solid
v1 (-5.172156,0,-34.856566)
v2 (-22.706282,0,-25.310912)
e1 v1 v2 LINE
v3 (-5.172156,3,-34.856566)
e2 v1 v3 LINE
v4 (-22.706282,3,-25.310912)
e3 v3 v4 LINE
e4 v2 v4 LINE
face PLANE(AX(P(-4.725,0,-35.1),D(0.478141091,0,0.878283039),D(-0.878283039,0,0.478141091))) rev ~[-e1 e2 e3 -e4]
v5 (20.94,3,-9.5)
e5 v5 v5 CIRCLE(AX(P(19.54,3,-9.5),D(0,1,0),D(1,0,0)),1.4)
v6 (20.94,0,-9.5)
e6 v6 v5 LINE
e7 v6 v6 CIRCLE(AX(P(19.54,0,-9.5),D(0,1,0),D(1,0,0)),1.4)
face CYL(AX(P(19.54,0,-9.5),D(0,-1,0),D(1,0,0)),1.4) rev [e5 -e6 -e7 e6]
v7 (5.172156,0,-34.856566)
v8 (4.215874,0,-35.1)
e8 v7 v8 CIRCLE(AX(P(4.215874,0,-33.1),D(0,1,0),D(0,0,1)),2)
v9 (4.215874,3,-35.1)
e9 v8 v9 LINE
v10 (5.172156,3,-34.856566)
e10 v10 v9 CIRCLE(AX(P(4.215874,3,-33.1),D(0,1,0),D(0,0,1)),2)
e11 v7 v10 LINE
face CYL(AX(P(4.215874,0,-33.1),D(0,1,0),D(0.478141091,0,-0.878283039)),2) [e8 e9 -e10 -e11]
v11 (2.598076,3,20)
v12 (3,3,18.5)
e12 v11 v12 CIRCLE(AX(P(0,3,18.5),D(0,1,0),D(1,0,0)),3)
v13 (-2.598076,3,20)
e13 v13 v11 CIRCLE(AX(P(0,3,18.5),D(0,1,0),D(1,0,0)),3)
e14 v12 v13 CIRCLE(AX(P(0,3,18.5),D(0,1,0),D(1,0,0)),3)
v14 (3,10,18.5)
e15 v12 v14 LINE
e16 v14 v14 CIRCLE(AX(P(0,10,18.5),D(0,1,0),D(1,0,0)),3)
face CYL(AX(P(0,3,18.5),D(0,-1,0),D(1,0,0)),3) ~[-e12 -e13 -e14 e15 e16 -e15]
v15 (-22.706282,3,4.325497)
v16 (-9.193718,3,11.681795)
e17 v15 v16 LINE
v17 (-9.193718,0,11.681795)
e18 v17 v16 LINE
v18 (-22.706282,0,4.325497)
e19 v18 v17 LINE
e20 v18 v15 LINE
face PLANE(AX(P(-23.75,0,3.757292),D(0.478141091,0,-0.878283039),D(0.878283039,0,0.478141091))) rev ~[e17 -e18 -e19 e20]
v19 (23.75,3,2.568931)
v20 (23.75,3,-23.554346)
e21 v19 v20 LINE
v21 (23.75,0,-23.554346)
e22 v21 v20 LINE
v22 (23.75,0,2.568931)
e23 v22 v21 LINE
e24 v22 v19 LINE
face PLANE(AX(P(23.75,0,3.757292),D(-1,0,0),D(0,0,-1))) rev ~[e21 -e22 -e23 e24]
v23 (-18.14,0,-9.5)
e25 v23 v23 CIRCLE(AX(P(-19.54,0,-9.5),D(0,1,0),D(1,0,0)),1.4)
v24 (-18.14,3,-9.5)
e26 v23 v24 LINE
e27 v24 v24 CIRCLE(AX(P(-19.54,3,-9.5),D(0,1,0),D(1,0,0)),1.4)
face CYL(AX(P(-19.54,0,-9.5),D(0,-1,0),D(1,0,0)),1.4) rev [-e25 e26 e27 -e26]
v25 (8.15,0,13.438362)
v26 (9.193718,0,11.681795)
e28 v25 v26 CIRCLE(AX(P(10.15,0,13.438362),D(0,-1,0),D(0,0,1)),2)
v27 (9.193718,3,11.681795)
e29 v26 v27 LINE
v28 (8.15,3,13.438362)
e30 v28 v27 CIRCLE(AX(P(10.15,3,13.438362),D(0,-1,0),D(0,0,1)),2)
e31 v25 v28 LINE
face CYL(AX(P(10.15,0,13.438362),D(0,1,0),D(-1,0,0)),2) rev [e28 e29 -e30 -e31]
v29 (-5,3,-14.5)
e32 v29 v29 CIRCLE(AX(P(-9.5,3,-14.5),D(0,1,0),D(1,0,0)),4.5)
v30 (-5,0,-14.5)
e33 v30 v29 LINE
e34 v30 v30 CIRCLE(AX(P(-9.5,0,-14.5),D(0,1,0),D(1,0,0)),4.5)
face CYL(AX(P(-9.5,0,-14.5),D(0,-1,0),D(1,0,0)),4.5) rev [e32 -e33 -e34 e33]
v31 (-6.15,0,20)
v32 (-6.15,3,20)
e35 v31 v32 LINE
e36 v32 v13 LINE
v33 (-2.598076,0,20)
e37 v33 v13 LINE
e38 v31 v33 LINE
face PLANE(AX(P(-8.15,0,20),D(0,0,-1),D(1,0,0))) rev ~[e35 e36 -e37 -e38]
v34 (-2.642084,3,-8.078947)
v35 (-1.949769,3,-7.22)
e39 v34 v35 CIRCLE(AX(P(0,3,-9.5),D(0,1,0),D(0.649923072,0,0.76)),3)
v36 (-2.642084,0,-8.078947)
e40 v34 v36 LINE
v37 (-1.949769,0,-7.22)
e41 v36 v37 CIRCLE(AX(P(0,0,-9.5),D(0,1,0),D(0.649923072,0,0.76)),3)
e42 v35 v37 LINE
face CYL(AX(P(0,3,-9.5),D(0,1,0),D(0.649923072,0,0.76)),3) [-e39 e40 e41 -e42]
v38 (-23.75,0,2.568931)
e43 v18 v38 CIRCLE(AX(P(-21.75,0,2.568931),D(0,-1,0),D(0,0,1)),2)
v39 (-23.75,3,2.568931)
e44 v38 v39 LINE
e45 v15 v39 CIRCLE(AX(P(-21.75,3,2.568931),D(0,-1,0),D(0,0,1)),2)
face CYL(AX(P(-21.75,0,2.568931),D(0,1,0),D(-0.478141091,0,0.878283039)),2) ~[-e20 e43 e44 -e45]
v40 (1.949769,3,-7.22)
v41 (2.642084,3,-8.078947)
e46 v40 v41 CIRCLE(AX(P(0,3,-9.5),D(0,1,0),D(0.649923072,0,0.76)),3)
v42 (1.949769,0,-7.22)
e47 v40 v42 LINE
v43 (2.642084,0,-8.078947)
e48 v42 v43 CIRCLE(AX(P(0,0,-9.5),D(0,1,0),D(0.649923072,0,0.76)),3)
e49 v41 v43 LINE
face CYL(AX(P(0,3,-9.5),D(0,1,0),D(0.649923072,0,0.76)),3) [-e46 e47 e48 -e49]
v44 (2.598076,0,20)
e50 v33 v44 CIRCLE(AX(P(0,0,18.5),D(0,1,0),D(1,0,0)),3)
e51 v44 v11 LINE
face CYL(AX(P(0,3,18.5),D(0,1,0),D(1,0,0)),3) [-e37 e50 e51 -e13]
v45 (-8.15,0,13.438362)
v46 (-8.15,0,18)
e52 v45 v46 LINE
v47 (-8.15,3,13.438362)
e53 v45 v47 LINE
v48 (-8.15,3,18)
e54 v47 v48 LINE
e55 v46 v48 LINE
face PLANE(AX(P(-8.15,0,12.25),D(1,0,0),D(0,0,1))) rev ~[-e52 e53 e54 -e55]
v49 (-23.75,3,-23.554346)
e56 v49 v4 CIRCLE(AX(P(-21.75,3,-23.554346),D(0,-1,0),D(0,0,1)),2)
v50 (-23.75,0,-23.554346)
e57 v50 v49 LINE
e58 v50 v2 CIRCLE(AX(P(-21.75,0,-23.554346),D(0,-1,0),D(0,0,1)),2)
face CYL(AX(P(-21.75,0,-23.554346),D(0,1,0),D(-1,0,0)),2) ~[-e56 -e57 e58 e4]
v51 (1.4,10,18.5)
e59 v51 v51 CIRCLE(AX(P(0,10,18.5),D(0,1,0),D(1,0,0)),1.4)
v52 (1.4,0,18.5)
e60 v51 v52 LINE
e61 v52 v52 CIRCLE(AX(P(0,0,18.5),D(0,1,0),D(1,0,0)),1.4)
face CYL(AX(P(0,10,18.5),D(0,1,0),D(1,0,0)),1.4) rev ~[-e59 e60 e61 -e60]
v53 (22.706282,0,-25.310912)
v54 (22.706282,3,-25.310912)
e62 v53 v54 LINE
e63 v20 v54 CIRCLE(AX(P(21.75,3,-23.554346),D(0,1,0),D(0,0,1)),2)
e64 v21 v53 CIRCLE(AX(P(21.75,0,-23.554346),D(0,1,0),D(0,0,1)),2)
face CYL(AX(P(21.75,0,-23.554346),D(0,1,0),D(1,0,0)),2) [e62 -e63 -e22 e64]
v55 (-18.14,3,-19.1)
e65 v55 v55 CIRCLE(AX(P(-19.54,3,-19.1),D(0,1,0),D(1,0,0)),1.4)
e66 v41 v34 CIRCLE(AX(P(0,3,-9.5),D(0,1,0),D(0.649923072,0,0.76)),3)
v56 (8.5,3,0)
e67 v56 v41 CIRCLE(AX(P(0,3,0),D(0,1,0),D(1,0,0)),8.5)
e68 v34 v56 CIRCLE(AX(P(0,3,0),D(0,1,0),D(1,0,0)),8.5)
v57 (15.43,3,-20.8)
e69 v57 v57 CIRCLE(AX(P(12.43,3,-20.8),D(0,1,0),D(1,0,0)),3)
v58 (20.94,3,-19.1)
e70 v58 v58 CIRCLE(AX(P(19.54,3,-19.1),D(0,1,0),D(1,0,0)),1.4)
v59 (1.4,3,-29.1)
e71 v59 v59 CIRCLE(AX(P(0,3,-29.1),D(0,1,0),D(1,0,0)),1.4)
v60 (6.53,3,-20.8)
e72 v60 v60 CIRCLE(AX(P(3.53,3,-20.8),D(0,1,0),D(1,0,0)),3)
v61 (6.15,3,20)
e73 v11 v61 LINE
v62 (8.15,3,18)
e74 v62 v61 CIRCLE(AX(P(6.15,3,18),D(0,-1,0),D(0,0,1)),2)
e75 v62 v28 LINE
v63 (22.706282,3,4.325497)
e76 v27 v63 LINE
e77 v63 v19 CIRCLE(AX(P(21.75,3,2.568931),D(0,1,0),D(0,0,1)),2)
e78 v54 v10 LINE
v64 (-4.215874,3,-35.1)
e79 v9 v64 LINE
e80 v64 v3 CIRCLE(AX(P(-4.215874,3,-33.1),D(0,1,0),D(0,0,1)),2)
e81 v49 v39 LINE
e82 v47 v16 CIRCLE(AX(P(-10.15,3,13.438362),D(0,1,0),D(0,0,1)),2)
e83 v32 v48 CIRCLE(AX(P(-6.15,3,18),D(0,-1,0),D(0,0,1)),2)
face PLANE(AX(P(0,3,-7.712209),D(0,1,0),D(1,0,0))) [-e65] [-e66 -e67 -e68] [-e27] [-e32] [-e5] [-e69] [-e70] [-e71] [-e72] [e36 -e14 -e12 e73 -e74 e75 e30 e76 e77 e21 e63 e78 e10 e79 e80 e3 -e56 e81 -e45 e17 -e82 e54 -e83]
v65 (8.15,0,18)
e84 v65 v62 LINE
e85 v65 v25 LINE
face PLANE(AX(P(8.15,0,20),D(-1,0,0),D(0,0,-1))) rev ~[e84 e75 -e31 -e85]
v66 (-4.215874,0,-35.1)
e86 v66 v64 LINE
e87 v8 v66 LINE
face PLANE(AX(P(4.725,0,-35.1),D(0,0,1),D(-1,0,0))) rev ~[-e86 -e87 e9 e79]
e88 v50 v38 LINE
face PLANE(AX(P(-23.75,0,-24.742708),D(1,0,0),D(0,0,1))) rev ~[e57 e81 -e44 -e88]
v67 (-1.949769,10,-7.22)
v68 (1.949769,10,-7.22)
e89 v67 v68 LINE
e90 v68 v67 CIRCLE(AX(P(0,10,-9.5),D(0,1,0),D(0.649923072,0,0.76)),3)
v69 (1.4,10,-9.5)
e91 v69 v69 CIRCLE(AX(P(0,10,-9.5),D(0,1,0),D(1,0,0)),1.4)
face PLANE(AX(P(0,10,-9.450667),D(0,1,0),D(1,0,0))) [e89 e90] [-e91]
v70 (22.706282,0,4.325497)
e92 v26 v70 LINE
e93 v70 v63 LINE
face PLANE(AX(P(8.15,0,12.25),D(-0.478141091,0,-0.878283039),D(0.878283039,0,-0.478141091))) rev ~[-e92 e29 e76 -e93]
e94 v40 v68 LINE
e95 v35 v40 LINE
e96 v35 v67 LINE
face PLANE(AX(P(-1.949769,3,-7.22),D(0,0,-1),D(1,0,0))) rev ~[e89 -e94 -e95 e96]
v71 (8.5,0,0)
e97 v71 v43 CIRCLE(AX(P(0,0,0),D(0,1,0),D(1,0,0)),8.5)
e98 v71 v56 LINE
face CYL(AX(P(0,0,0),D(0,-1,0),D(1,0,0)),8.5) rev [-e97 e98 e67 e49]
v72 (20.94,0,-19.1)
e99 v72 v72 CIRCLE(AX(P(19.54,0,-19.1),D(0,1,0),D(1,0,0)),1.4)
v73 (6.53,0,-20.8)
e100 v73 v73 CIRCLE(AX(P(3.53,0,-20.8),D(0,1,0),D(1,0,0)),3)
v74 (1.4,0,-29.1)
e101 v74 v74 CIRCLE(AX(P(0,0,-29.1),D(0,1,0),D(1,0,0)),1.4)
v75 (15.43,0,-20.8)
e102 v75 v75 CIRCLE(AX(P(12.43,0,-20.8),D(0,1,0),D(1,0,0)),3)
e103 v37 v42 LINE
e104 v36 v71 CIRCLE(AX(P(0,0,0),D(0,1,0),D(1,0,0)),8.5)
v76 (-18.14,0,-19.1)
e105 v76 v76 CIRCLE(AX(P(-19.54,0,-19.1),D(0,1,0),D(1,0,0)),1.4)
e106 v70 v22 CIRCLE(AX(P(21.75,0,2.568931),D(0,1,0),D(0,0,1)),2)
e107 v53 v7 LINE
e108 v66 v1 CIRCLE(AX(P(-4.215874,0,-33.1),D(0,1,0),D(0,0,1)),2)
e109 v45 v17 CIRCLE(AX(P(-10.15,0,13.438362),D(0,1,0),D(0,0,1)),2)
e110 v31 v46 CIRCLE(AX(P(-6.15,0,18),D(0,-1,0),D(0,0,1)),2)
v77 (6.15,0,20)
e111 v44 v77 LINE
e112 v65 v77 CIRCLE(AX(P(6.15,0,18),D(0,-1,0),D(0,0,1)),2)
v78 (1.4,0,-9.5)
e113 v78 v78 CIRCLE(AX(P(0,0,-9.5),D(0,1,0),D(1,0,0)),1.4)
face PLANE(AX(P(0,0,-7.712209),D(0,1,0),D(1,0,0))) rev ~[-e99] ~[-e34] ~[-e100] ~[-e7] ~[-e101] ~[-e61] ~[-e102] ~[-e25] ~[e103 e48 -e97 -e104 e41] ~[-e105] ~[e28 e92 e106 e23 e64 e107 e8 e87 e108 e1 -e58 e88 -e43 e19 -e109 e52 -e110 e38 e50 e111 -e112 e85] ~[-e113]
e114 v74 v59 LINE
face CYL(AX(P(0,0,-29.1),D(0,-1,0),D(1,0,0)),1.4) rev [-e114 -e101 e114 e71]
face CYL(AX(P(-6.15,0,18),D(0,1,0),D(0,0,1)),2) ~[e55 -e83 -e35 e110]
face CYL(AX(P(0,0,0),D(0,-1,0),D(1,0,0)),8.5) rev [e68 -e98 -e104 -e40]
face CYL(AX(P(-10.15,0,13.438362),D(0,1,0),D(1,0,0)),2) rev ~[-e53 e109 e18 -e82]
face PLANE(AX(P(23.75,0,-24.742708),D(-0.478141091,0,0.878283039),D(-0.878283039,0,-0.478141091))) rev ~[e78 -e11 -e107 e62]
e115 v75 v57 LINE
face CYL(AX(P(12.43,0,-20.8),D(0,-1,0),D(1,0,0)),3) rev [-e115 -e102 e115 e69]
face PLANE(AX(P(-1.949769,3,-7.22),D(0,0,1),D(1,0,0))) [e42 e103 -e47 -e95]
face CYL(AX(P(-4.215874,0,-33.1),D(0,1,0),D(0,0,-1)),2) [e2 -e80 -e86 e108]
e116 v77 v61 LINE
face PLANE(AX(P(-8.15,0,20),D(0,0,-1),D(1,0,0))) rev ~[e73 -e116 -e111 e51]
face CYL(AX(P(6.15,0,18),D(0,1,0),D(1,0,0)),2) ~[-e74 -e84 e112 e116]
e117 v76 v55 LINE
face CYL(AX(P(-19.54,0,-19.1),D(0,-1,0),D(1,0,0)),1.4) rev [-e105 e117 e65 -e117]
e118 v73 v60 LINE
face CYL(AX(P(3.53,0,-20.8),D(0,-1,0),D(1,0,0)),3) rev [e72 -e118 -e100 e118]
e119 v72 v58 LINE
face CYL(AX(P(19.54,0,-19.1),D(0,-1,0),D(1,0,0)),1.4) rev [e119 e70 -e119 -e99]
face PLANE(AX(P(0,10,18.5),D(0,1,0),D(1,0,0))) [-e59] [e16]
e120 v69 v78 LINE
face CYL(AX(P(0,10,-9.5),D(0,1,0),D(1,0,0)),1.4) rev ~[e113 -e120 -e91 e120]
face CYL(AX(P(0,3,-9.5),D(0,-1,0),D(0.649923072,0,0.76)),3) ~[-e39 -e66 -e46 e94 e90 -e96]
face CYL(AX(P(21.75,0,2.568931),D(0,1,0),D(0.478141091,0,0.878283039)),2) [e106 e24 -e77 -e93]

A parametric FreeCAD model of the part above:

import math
import FreeCAD as App
import Part
import Sketcher


def edges_at(feature, points):
    """Names of the edges that pass closest to the given points."""
    edges = feature.Shape.Edges
    near = lambda p: min(range(len(edges)), key=lambda i: edges[i].distToShape(Part.Vertex(*p))[0])
    return sorted({f"Edge{near(p) + 1}" for p in points})

doc = App.newDocument("Part")
params = doc.addObject("Spreadsheet::Sheet", "Params")
for row, (alias, value) in enumerate([
    ("sketch1_diameter", "17 mm"),
    ("sketch1_diameter2", "9 mm"),
    ("sketch1_diameter3", "6 mm"),
    ("sketch1_diameter4", "2.8 mm"),
    ("sketch1_width", "16.3 mm"),
    ("pad1_length", "3 mm"),
    ("fillet_radius", "2 mm"),
    ("sketch2_diameter", "6 mm"),
    ("pad2_length", "7 mm"),
    ("pad2_length2", "3 mm"),
    ("sketch3_diameter", "2.8 mm"),
], start=1):
    params.set(f"A{row}", alias)
    params.set(f"B{row}", "=" + value)
    params.setAlias(f"B{row}", alias)

body = doc.addObject("PartDesign::Body", "Body")

sketch1 = body.newObject("Sketcher::SketchObject", "Sketch")
sketch1.AttachmentSupport = (doc.getObject("XZ_Plane"), [""])
sketch1.MapMode = "FlatFace"
sketch1.addGeometry([
    Part.LineSegment(App.Vector(8.2, 20, 0), App.Vector(8.2, 12.2, 0)),
    Part.LineSegment(App.Vector(8.2, 12.2, 0), App.Vector(23.8, 3.8, 0)),
    Part.LineSegment(App.Vector(23.8, 3.8, 0), App.Vector(23.8, -24.7, 0)),
    Part.LineSegment(App.Vector(23.8, -24.7, 0), App.Vector(4.7, -35.1, 0)),
    Part.LineSegment(App.Vector(4.7, -35.1, 0), App.Vector(-4.7, -35.1, 0)),
    Part.LineSegment(App.Vector(-4.7, -35.1, 0), App.Vector(-23.8, -24.7, 0)),
    Part.LineSegment(App.Vector(-23.8, -24.7, 0), App.Vector(-23.8, 3.8, 0)),
    Part.LineSegment(App.Vector(-23.8, 3.8, 0), App.Vector(-8.2, 12.2, 0)),
    Part.LineSegment(App.Vector(-8.2, 12.2, 0), App.Vector(-8.2, 20, 0)),
    Part.LineSegment(App.Vector(-8.2, 20, 0), App.Vector(8.2, 20, 0)),
    Part.Circle(App.Vector(-19.5, -9.5, 0), App.Vector(0, 0, 1), 1.4),
    Part.Circle(App.Vector(0, 0, 0), App.Vector(0, 0, 1), 8.5),
    Part.Circle(App.Vector(19.5, -9.5, 0), App.Vector(0, 0, 1), 1.4),
    Part.Circle(App.Vector(-19.5, -19.1, 0), App.Vector(0, 0, 1), 1.4),
    Part.Circle(App.Vector(-9.5, -14.5, 0), App.Vector(0, 0, 1), 4.5),
    Part.Circle(App.Vector(19.5, -19.1, 0), App.Vector(0, 0, 1), 1.4),
    Part.Circle(App.Vector(3.5, -20.8, 0), App.Vector(0, 0, 1), 3),
    Part.Circle(App.Vector(0, -29.1, 0), App.Vector(0, 0, 1), 1.4),
    Part.Circle(App.Vector(12.4, -20.8, 0), App.Vector(0, 0, 1), 3),
], False)
sketch1.addConstraint([
    Sketcher.Constraint("Coincident", 0, 2, 1, 1),
    Sketcher.Constraint("Coincident", 1, 2, 2, 1),
    Sketcher.Constraint("Coincident", 2, 2, 3, 1),
    Sketcher.Constraint("Coincident", 3, 2, 4, 1),
    Sketcher.Constraint("Coincident", 4, 2, 5, 1),
    Sketcher.Constraint("Coincident", 5, 2, 6, 1),
    Sketcher.Constraint("Coincident", 6, 2, 7, 1),
    Sketcher.Constraint("Coincident", 7, 2, 8, 1),
    Sketcher.Constraint("Coincident", 8, 2, 9, 1),
    Sketcher.Constraint("Coincident", 9, 2, 0, 1),
    Sketcher.Constraint("Vertical", 0),
    Sketcher.Constraint("Vertical", 2),
    Sketcher.Constraint("Horizontal", 4),
    Sketcher.Constraint("Vertical", 6),
    Sketcher.Constraint("Vertical", 8),
    Sketcher.Constraint("Horizontal", 9),
    Sketcher.Constraint("Coincident", 11, 3, -1, 1),
    Sketcher.Constraint("Equal", 10, 12),
    Sketcher.Constraint("Equal", 12, 13),
    Sketcher.Constraint("Equal", 13, 15),
    Sketcher.Constraint("Equal", 15, 17),
    Sketcher.Constraint("Equal", 16, 18),
    Sketcher.Constraint("Symmetric", 10, 3, 12, 3, -2),
    Sketcher.Constraint("Symmetric", 13, 3, 15, 3, -2),
    Sketcher.Constraint("Symmetric", 2, 2, 5, 2, -2),
    Sketcher.Constraint("Symmetric", 0, 2, 7, 2, -2),
    Sketcher.Constraint("PointOnObject", 17, 3, -2),
    Sketcher.Constraint("Parallel", 1, 5),
    Sketcher.Constraint("Parallel", 3, 7),
    Sketcher.Constraint("Horizontal", 16, 3, 18, 3),
    Sketcher.Constraint("Horizontal", 1, 2, 6, 2),
    Sketcher.Constraint("Vertical", 10, 3, 13, 3),
    Sketcher.Constraint("Diameter", 11, 17.0),
    Sketcher.Constraint("Diameter", 14, 9.0),
    Sketcher.Constraint("Diameter", 16, 6.0),
    Sketcher.Constraint("Diameter", 10, 2.8),
    Sketcher.Constraint("DistanceX", 9, 1, 9, 2, 16.3),
    Sketcher.Constraint("DistanceY", 2, 2, 2, 1, 28.5),
    Sketcher.Constraint("DistanceY", -1, 1, 8, 2, 20.0),
    Sketcher.Constraint("DistanceY", 14, 3, 10, 3, 5.0),
    Sketcher.Constraint("DistanceY", 17, 3, 13, 3, 10.0),
    Sketcher.Constraint("DistanceY", 3, 2, 17, 3, 6.0),
    Sketcher.Constraint("DistanceX", 4, 2, 4, 1, 9.45),
    Sketcher.Constraint("DistanceY", 0, 2, 0, 1, 7.75),
    Sketcher.Constraint("DistanceY", 10, 3, -1, 1, 9.5),
    Sketcher.Constraint("DistanceY", 13, 3, -1, 1, 19.1),
    Sketcher.Constraint("DistanceX", 14, 3, -1, 1, 9.5),
    Sketcher.Constraint("DistanceY", 16, 3, -1, 1, 20.8),
    Sketcher.Constraint("DistanceX", 16, 3, 18, 3, 8.9),
    Sketcher.Constraint("DistanceX", 0, 2, 1, 2, 15.6),
    Sketcher.Constraint("DistanceX", 10, 3, -1, 1, 19.54),
    Sketcher.Constraint("DistanceX", -1, 1, 16, 3, 3.53),
])
sketch1.setExpression("Constraints[32]", "Params.sketch1_diameter")
sketch1.setExpression("Constraints[33]", "Params.sketch1_diameter2")
sketch1.setExpression("Constraints[34]", "Params.sketch1_diameter3")
sketch1.setExpression("Constraints[35]", "Params.sketch1_diameter4")
sketch1.setExpression("Constraints[36]", "Params.sketch1_width")
pad1 = body.newObject("PartDesign::Pad", "Pad")
pad1.Profile = sketch1
pad1.setExpression("Length", "Params.pad1_length")
pad1.Reversed = True
doc.recompute()

fillet = body.newObject("PartDesign::Fillet", "Fillet")
fillet.Base = (pad1, edges_at(pad1, [
    (-8.15, 1.5, 20),
    (-8.15, 1.5, 12.25),
    (-23.75, 1.5, 3.757),
    (-23.75, 1.5, -24.743),
    (-4.725, 1.5, -35.1),
    (4.725, 1.5, -35.1),
    (23.75, 1.5, -24.743),
    (23.75, 1.5, 3.757),
    (8.15, 1.5, 12.25),
    (8.15, 1.5, 20),
]))
fillet.setExpression("Radius", "Params.fillet_radius")

sketch2 = body.newObject("Sketcher::SketchObject", "Sketch001")
sketch2.AttachmentSupport = (doc.getObject("XZ_Plane"), [""])
sketch2.MapMode = "FlatFace"
sketch2.AttachmentOffset = App.Placement(App.Vector(0, 0, -3), App.Rotation())
sketch2.addGeometry([
    Part.Circle(App.Vector(0, 18.5, 0), App.Vector(0, 0, 1), 3),
    Part.LineSegment(App.Vector(-1.9, -7.2, 0), App.Vector(1.9, -7.2, 0)),
    Part.ArcOfCircle(Part.Circle(App.Vector(0, -9.5, 0), App.Vector(0, 0, 1), 3), math.radians(131), math.radians(409)),
], False)
sketch2.addConstraint([
    Sketcher.Constraint("Coincident", 1, 1, 2, 1),
    Sketcher.Constraint("Coincident", 2, 2, 1, 2),
    Sketcher.Constraint("Horizontal", 1),
    Sketcher.Constraint("Equal", 0, 2),
    Sketcher.Constraint("PointOnObject", 0, 3, -2),
    Sketcher.Constraint("PointOnObject", 2, 3, -2),
    Sketcher.Constraint("Diameter", 0, 6.0),
    Sketcher.Constraint("DistanceY", 2, 3, 0, 3, 28.0),
    Sketcher.Constraint("DistanceY", -1, 1, 0, 3, 18.5),
    Sketcher.Constraint("DistanceY", 1, 1, -1, 1, 7.22),
])
sketch2.setExpression("Constraints[6]", "Params.sketch2_diameter")
pad2 = body.newObject("PartDesign::Pad", "Pad001")
pad2.Profile = sketch2
pad2.Type = "TwoLengths"
pad2.setExpression("Length", "Params.pad2_length")
pad2.setExpression("Length2", "Params.pad2_length2")
pad2.Reversed = True

sketch3 = body.newObject("Sketcher::SketchObject", "Sketch002")
sketch3.AttachmentSupport = (doc.getObject("XZ_Plane"), [""])
sketch3.MapMode = "FlatFace"
sketch3.AttachmentOffset = App.Placement(App.Vector(0, 0, -10), App.Rotation())
sketch3.addGeometry([
    Part.Circle(App.Vector(0, -9.5, 0), App.Vector(0, 0, 1), 1.4),
    Part.Circle(App.Vector(0, 18.5, 0), App.Vector(0, 0, 1), 1.4),
], False)
sketch3.addConstraint([
    Sketcher.Constraint("Equal", 0, 1),
    Sketcher.Constraint("PointOnObject", 0, 3, -2),
    Sketcher.Constraint("PointOnObject", 1, 3, -2),
    Sketcher.Constraint("Diameter", 0, 2.8),
    Sketcher.Constraint("DistanceY", 0, 3, 1, 3, 28.0),
    Sketcher.Constraint("DistanceY", 0, 3, -1, 1, 9.5),
])
sketch3.setExpression("Constraints[3]", "Params.sketch3_diameter")
pocket1 = body.newObject("PartDesign::Pocket", "Pocket")
pocket1.Profile = sketch3
pocket1.Type = "ThroughAll"
pocket1.Midplane = True

doc.recompute()
